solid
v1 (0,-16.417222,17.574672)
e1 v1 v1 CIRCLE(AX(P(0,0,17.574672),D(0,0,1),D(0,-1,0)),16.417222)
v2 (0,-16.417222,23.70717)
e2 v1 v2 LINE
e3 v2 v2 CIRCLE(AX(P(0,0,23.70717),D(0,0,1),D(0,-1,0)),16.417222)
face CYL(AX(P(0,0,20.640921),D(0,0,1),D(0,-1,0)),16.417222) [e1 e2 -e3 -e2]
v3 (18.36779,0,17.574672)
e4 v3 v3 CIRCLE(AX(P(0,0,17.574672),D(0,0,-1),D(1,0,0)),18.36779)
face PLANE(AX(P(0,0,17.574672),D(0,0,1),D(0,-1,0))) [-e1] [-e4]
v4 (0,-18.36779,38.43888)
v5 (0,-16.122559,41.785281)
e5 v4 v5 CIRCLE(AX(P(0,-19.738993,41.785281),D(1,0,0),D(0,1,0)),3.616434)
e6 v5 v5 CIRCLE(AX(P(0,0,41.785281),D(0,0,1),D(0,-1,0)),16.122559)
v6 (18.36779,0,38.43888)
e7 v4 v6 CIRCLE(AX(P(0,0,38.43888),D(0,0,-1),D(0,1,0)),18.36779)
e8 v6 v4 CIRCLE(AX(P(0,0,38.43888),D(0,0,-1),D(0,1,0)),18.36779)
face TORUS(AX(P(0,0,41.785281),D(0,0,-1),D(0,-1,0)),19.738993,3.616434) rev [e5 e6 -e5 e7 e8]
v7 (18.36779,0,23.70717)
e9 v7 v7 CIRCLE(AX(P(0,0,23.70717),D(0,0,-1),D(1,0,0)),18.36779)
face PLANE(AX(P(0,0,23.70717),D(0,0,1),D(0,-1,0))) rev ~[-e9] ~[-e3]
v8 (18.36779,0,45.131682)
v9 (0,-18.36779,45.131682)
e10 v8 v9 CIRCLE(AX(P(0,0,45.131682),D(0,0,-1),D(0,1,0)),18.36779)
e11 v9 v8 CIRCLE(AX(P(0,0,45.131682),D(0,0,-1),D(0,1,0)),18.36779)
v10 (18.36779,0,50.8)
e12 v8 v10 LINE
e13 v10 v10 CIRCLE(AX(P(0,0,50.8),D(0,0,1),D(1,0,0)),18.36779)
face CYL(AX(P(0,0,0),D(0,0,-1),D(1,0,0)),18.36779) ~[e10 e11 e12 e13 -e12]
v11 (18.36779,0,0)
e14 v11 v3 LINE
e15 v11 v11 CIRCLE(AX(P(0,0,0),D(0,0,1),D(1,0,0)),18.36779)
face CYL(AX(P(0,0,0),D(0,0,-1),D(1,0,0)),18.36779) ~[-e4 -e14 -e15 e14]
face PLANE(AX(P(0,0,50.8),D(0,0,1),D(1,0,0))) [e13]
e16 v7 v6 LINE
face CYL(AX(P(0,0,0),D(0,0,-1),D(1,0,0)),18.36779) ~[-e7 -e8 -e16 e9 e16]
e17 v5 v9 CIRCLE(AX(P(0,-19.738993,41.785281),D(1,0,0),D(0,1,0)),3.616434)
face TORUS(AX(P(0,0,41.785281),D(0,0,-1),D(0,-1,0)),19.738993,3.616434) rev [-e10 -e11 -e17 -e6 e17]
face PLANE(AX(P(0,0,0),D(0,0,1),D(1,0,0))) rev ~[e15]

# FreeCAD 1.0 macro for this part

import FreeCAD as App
import Part
import Sketcher
Q = App.Units.Quantity

doc = App.newDocument("Part")
body = doc.addObject("PartDesign::Body", "Body")

# Sketch on XY plane
sketch1 = body.newObject("Sketcher::SketchObject", "Sketch")
sketch1.AttachmentSupport = (doc.getObject("XY_Plane"), [""])
sketch1.MapMode = "FlatFace"
sketch1.addGeometry(Part.Circle(App.Vector(0, 0, 0), App.Vector(0, 0, 1), 18), False)
sketch1.addConstraint(Sketcher.Constraint("Coincident", 0, 3, -1, 1))
sketch1.addConstraint(Sketcher.Constraint("Diameter", 0, 36.73558))
pad1 = body.newObject("PartDesign::Pad", "Pad")
pad1.Profile = sketch1
pad1.Length = Q("2 in")

# Sketch on YZ plane
sketch2 = body.newObject("Sketcher::SketchObject", "Sketch001")
sketch2.AttachmentSupport = (doc.getObject("YZ_Plane"), [""])
sketch2.MapMode = "FlatFace"
sketch2.addGeometry(Part.Circle(App.Vector(-19.7, 41.8, 0), App.Vector(0, 0, 1), 3.6), False)
sketch2.addGeometry(Part.LineSegment(App.Vector(-23.1, 23.7, 0), App.Vector(-23.1, 17.6, 0)), False)
sketch2.addGeometry(Part.LineSegment(App.Vector(-23.1, 17.6, 0), App.Vector(-16.4, 17.6, 0)), False)
sketch2.addGeometry(Part.LineSegment(App.Vector(-16.4, 17.6, 0), App.Vector(-16.4, 23.7, 0)), False)
sketch2.addGeometry(Part.LineSegment(App.Vector(-16.4, 23.7, 0), App.Vector(-23.1, 23.7, 0)), False)
sketch2.addConstraint(Sketcher.Constraint("Coincident", 1, 2, 2, 1))
sketch2.addConstraint(Sketcher.Constraint("Coincident", 2, 2, 3, 1))
sketch2.addConstraint(Sketcher.Constraint("Coincident", 3, 2, 4, 1))
sketch2.addConstraint(Sketcher.Constraint("Coincident", 4, 2, 1, 1))
sketch2.addConstraint(Sketcher.Constraint("Vertical", 1))
sketch2.addConstraint(Sketcher.Constraint("Horizontal", 2))
sketch2.addConstraint(Sketcher.Constraint("Vertical", 3))
sketch2.addConstraint(Sketcher.Constraint("Horizontal", 4))
sketch2.addConstraint(Sketcher.Constraint("Diameter", 0, 7.232868))
sketch2.addConstraint(Sketcher.Constraint("DistanceY", 1, 2, 1, 1, 6.132498))
sketch2.addConstraint(Sketcher.Constraint("DistanceX", 2, 1, 2, 2, 6.643541))
sketch2.addConstraint(Sketcher.Constraint("DistanceY", -1, 1, 0, 3, 41.785281))
sketch2.addConstraint(Sketcher.Constraint("DistanceY", -1, 1, 1, 2, 17.574672))
sketch2.addConstraint(Sketcher.Constraint("DistanceX", 2, 2, -1, 1, 16.417222))
sketch2.addConstraint(Sketcher.Constraint("DistanceX", 1, 2, 0, 3, 3.321769))
groove = body.newObject("PartDesign::Groove", "Groove")
groove.Profile = sketch2
groove.ReferenceAxis = (sketch2, ["V_Axis"])
groove.Angle = 360

doc.recompute()
